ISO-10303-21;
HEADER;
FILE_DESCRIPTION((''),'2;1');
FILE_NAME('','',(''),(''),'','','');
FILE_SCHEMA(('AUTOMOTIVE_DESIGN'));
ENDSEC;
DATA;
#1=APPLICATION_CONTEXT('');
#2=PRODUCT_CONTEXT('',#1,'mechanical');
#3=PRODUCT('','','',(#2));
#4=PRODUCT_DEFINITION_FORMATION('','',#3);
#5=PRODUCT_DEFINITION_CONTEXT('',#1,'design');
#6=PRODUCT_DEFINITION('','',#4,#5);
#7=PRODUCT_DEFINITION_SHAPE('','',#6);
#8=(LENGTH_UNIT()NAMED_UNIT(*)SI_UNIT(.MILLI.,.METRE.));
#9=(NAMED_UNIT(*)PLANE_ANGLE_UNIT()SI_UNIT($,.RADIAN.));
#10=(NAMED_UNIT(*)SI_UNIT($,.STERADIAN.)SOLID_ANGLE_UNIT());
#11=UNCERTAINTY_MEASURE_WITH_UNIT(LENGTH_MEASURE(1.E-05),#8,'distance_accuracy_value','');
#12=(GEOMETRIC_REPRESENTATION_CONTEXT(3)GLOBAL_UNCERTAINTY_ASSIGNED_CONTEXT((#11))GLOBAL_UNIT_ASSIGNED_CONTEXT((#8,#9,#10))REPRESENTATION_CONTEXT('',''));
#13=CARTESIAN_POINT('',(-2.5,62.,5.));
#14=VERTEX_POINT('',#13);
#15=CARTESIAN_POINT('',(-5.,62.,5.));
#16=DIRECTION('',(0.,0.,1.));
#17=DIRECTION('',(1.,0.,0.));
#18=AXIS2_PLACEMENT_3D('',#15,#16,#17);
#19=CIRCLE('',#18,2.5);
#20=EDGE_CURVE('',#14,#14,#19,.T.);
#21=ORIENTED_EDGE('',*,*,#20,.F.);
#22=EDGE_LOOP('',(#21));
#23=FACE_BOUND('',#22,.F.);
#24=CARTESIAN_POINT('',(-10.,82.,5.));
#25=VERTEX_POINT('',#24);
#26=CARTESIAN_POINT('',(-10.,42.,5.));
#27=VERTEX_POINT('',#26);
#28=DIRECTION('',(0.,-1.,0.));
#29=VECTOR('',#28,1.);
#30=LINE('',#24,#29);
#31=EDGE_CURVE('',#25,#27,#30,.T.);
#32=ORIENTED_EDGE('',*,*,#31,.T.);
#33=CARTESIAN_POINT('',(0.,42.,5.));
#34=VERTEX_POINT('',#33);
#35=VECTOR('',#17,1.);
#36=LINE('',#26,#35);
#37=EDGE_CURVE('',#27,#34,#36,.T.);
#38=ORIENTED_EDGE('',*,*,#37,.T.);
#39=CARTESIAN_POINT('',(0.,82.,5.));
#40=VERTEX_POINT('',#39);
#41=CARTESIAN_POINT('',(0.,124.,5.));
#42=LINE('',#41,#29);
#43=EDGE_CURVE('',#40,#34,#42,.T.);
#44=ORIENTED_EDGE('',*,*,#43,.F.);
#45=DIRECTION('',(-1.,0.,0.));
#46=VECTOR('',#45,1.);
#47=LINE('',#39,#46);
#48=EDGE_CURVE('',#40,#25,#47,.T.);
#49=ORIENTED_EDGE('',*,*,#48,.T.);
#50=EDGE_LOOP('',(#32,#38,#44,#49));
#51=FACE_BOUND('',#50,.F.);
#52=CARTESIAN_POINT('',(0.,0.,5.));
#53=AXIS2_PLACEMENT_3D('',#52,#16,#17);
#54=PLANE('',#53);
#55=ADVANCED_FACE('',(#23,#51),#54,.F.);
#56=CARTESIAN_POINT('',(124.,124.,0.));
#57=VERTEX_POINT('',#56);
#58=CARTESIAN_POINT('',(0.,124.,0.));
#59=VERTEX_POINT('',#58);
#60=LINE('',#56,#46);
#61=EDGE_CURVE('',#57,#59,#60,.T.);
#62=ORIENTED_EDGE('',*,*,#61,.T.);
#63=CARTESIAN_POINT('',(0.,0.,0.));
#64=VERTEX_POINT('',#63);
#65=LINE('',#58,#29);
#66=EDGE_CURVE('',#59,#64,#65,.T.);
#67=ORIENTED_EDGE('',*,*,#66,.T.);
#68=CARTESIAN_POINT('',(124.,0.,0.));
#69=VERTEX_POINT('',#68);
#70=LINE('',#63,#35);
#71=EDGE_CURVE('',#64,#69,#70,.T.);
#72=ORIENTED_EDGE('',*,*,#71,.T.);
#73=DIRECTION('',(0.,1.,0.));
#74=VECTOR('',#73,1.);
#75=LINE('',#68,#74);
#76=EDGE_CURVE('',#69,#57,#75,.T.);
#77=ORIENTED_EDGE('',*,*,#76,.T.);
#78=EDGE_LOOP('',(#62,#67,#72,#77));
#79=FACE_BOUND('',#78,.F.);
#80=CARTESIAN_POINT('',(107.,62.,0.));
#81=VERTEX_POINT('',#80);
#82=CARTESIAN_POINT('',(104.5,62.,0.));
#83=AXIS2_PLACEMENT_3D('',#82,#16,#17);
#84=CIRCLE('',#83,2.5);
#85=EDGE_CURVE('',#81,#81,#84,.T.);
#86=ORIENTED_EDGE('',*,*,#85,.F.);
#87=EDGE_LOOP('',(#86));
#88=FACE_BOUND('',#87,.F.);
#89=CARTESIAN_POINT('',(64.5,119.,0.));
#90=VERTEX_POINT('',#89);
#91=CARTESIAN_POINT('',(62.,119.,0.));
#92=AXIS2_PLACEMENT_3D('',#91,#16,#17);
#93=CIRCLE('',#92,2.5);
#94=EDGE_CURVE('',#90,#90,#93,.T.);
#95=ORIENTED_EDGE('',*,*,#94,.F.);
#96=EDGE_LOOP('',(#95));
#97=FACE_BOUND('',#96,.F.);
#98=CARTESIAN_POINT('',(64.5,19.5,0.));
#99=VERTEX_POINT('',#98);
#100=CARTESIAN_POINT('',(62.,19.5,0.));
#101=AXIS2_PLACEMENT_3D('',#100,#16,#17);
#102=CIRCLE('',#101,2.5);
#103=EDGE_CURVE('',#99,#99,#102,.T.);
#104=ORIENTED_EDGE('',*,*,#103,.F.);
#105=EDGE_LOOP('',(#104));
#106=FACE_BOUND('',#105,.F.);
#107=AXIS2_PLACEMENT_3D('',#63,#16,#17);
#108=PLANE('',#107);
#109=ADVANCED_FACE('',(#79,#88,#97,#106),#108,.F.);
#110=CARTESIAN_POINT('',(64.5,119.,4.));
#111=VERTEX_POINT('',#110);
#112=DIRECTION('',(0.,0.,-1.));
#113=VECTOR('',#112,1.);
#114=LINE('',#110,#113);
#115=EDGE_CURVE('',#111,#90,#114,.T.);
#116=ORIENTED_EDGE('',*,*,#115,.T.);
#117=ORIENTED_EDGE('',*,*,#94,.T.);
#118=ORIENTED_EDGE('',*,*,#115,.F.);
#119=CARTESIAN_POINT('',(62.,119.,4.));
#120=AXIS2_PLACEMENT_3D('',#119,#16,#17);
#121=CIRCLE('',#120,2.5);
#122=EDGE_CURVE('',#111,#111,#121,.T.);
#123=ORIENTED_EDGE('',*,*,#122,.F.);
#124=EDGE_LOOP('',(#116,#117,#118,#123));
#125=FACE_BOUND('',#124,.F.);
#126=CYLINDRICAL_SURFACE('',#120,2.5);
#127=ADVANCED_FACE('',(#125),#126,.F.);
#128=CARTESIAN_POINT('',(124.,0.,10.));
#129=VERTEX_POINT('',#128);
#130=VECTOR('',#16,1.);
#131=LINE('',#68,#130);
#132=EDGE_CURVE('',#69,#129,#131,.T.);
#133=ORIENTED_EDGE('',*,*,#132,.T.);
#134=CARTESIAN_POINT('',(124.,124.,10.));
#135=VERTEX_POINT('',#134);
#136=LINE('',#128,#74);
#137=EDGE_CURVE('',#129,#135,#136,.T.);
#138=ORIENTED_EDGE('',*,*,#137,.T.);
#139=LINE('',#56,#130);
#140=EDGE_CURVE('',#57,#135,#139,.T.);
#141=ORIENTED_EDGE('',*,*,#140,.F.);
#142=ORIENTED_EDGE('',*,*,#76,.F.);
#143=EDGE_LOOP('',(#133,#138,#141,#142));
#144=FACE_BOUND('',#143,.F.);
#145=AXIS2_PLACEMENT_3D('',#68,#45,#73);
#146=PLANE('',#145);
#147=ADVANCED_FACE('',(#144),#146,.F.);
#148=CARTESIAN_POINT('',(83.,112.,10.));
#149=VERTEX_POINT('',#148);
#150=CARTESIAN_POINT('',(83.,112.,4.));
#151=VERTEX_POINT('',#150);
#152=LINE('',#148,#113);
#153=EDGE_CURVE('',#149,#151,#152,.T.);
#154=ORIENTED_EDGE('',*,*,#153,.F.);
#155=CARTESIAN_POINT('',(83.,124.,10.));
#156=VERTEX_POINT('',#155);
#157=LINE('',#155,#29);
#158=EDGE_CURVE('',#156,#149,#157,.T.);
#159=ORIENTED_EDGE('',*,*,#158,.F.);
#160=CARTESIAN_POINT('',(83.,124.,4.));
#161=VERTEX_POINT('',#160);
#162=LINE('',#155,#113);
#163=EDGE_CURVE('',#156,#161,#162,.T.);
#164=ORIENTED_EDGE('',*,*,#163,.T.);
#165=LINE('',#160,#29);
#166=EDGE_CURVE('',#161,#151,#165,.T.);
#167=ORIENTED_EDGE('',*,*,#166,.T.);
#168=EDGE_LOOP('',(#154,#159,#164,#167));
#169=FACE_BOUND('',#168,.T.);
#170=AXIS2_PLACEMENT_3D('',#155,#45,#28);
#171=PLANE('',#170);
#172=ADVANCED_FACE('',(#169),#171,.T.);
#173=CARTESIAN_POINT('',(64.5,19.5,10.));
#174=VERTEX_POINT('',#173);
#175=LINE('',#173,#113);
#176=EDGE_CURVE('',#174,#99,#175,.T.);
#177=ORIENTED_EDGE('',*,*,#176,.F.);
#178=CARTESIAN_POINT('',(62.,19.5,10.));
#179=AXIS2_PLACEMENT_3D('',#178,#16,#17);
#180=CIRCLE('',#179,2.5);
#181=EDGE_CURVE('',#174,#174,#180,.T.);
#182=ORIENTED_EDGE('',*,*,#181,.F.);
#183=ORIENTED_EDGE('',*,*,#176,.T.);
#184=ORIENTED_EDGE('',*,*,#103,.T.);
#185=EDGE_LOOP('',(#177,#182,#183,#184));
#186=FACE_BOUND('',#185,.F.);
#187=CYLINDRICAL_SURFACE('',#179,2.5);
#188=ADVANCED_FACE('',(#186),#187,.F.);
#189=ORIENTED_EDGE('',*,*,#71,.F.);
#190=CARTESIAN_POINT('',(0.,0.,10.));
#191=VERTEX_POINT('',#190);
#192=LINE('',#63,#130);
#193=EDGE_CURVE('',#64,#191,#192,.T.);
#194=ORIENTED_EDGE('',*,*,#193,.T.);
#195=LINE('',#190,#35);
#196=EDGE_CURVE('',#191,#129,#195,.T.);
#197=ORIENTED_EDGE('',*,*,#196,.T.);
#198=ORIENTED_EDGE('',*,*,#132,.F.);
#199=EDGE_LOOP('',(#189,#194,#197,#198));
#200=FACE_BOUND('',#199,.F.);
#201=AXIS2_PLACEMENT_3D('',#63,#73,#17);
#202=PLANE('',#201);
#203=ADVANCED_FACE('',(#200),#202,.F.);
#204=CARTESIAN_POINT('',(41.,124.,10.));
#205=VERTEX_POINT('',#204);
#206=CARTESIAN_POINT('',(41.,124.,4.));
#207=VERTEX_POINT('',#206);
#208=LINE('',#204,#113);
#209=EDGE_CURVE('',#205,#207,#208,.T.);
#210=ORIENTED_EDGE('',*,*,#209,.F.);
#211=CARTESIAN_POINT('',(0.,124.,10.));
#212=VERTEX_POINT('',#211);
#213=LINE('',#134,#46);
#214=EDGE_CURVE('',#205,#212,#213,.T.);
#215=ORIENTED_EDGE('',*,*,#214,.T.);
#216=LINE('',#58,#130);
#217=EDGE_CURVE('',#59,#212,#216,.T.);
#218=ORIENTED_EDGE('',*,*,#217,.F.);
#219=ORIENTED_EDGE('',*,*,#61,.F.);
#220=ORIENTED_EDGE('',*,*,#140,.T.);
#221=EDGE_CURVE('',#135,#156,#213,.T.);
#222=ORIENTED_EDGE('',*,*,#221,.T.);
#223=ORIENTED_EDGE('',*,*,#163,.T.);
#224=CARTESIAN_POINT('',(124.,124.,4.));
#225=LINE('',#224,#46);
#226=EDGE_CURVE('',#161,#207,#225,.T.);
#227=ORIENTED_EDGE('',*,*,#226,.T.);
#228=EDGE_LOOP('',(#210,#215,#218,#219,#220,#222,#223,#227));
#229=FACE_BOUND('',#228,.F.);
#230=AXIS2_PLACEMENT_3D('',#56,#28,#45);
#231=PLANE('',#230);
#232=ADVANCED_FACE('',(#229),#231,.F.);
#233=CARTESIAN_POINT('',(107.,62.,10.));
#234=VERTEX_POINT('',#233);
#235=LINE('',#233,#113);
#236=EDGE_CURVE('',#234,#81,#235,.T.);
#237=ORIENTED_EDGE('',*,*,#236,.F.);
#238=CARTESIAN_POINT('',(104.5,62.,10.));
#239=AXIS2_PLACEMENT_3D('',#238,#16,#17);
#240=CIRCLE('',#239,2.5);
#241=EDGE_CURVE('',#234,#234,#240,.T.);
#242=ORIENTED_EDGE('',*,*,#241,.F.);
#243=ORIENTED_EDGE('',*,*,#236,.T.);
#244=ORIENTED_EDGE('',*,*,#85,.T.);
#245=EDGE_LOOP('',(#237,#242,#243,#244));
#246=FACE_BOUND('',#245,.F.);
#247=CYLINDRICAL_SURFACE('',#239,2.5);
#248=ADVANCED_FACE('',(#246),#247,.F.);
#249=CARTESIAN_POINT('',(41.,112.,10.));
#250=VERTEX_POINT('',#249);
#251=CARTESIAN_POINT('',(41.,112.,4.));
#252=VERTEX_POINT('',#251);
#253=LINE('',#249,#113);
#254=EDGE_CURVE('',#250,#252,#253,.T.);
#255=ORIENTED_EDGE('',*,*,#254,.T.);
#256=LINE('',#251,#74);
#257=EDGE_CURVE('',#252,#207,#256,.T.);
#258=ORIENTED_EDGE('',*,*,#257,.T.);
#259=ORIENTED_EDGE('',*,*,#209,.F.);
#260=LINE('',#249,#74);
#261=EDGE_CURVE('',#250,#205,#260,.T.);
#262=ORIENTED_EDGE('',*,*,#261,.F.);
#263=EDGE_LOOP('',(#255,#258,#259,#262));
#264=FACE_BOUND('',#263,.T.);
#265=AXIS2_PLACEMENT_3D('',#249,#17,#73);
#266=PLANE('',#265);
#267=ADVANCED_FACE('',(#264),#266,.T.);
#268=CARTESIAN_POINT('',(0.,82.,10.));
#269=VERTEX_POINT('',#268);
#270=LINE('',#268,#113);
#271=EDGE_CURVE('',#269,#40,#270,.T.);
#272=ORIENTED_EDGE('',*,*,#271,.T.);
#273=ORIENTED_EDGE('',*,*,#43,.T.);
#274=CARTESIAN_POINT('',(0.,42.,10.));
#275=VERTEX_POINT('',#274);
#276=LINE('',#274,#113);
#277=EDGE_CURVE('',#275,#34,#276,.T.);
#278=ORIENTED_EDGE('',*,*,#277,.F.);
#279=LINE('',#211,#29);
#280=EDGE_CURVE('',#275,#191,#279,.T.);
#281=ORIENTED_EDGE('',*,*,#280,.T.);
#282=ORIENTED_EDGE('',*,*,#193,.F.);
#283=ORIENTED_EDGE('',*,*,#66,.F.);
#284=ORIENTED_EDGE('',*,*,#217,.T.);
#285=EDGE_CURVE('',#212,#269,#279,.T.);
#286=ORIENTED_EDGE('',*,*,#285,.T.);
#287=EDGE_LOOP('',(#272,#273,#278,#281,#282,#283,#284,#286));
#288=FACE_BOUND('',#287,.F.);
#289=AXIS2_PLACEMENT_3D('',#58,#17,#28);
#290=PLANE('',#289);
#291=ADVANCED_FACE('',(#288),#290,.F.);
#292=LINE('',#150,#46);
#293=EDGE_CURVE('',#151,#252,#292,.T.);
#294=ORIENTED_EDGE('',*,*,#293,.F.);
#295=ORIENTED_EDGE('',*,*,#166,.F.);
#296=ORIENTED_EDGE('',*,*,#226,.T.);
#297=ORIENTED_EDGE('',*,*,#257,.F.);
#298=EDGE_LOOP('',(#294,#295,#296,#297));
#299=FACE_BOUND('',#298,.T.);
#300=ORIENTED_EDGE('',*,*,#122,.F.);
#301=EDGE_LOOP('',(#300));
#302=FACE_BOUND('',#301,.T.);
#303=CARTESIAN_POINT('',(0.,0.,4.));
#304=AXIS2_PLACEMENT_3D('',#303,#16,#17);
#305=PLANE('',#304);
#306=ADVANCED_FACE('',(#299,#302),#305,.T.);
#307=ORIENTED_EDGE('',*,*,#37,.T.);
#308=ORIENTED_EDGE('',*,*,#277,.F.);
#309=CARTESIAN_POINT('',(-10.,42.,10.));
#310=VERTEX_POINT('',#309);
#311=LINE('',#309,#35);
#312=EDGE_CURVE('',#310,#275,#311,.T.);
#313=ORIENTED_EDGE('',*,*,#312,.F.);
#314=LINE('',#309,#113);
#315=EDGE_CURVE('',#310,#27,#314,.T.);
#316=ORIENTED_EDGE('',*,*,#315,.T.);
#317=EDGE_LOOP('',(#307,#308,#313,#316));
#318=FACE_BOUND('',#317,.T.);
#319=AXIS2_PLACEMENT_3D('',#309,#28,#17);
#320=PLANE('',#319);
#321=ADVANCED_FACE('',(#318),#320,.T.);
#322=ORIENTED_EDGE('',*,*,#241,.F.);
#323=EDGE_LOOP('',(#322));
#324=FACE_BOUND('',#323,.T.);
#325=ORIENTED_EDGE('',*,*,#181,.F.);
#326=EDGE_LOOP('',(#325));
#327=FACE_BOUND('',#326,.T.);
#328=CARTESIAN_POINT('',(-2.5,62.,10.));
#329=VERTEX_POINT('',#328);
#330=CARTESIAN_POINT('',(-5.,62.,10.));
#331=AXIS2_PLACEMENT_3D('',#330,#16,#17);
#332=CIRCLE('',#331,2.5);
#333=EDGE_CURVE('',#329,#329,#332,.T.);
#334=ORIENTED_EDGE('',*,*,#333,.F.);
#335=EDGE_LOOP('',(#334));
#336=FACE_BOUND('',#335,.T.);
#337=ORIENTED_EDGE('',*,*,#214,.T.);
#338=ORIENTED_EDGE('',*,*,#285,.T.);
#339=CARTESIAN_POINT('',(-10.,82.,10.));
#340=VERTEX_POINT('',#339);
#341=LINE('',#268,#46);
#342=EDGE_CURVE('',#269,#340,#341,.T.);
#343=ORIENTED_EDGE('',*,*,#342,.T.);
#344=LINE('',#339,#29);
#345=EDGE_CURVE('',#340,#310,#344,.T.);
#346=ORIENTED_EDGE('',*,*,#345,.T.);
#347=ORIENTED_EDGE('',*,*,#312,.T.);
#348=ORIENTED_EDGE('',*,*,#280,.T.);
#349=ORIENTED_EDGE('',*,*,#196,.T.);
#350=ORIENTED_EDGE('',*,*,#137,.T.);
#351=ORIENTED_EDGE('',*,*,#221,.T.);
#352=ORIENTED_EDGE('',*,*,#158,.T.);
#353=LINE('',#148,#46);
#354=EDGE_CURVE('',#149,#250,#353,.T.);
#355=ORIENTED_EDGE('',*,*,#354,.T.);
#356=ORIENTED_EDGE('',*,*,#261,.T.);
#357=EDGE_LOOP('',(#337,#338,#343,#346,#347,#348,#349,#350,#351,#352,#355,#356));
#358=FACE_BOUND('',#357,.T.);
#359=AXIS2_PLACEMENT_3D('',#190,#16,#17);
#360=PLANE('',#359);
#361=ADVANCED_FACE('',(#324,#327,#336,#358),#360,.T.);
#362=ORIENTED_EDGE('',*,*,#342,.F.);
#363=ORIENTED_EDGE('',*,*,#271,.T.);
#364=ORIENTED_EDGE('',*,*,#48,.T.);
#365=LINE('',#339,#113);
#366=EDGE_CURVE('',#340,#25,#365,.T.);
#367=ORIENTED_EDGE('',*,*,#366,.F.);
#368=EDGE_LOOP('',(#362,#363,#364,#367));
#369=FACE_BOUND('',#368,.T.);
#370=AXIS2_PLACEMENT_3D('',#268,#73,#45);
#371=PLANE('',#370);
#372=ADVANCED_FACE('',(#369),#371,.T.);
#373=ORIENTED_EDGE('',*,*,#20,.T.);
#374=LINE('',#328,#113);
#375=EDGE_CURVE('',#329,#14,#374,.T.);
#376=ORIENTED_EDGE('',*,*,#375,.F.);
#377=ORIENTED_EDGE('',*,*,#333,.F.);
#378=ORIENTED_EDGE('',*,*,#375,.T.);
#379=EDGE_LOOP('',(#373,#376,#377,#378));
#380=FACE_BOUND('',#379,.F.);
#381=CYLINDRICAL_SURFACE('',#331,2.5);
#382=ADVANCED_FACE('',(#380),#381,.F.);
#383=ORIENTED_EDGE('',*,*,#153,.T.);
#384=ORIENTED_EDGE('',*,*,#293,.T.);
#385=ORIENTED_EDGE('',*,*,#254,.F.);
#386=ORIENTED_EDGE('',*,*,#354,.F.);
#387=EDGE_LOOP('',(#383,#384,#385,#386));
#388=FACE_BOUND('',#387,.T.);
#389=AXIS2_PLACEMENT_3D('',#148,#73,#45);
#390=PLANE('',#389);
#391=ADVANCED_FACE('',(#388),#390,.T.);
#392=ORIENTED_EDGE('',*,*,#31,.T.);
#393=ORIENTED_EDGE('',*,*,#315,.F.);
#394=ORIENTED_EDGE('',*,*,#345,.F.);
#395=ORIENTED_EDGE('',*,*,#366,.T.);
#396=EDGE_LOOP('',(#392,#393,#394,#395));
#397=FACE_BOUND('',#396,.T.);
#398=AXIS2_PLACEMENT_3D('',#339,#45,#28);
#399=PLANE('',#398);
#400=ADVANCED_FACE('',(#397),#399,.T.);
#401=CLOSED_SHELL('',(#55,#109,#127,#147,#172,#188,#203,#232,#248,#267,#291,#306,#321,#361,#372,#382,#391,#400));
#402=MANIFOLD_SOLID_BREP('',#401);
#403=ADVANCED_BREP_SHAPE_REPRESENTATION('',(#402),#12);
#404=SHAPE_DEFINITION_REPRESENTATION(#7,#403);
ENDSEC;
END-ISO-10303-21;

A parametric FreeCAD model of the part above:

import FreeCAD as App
import Part
import Sketcher

V = App.Vector
Q = App.Units.Quantity


def add_polygon(sketch, points):
    """Adds a closed chain of lines whose ends are joined by coincident constraints."""
    first, n = sketch.GeometryCount, len(points)
    for a, b in zip(points, points[1:] + points[:1]):
        sketch.addGeometry(Part.LineSegment(App.Vector(*a, 0), App.Vector(*b, 0)), False)
    for i in range(n):
        sketch.addConstraint(Sketcher.Constraint("Coincident", first + i, 2, first + (i + 1) % n, 1))

doc = App.newDocument("Part")
body = doc.addObject("PartDesign::Body", "Body")

sketch1 = body.newObject("Sketcher::SketchObject", "Sketch")
sketch1.AttachmentSupport = (doc.getObject("XY_Plane"), [""])
sketch1.MapMode = "FlatFace"
add_polygon(sketch1, [(0, 124), (0, 0), (124, 0), (124, 124)])
sketch1.addConstraint([
    Sketcher.Constraint("Vertical", 0),
    Sketcher.Constraint("Horizontal", 1),
    Sketcher.Constraint("Vertical", 2),
    Sketcher.Constraint("Horizontal", 3),
    Sketcher.Constraint("Coincident", 0, 2, -1, 1),
    Sketcher.Constraint("Equal", 3, 0),
    Sketcher.Constraint("DistanceX", 1, 1, 1, 2, Q("124 mm")),
])
pad1 = body.newObject("PartDesign::Pad", "Pad")
pad1.Profile = sketch1
pad1.Length = 10

sketch2 = body.newObject("Sketcher::SketchObject", "Sketch001")
sketch2.AttachmentSupport = (doc.getObject("XY_Plane"), [""])
sketch2.MapMode = "FlatFace"
sketch2.AttachmentOffset = App.Placement(V(0, 0, 10), App.Rotation())
add_polygon(sketch2, [(83, 112), (83, 124), (41, 124), (41, 112)])
sketch2.addConstraint([
    Sketcher.Constraint("Vertical", 0),
    Sketcher.Constraint("Horizontal", 1),
    Sketcher.Constraint("Vertical", 2),
    Sketcher.Constraint("Horizontal", 3),
    Sketcher.Constraint("DistanceX", 1, 2, 1, 1, Q("42 mm")),
    Sketcher.Constraint("DistanceY", 0, 1, 0, 2, Q("12 mm")),
    Sketcher.Constraint("DistanceX", -1, 1, 0, 2, Q("83 mm")),
    Sketcher.Constraint("DistanceY", -1, 1, 0, 2, Q("124 mm")),
])
pocket1 = body.newObject("PartDesign::Pocket", "Pocket")
pocket1.Profile = sketch2
pocket1.Length = 6

sketch3 = body.newObject("Sketcher::SketchObject", "Sketch002")
sketch3.AttachmentSupport = (doc.getObject("XY_Plane"), [""])
sketch3.MapMode = "FlatFace"
sketch3.AttachmentOffset = App.Placement(V(0, 0, 4), App.Rotation())
sketch3.addGeometry(Part.Circle(V(62, 119, 0), V(0, 0, 1), 2.5), False)
sketch3.addConstraint([
    Sketcher.Constraint("Diameter", 0, Q("5 mm")),
    Sketcher.Constraint("DistanceX", -1, 1, 0, 3, Q("62 mm")),
    Sketcher.Constraint("DistanceY", -1, 1, 0, 3, Q("119 mm")),
])
pocket2 = body.newObject("PartDesign::Pocket", "Pocket001")
pocket2.Profile = sketch3
pocket2.Type = "ThroughAll"

sketch4 = body.newObject("Sketcher::SketchObject", "Sketch003")
sketch4.AttachmentSupport = (doc.getObject("XY_Plane"), [""])
sketch4.MapMode = "FlatFace"
sketch4.AttachmentOffset = App.Placement(V(0, 0, 10), App.Rotation())
add_polygon(sketch4, [(0, 42), (0, 82), (-10, 82), (-10, 42)])
sketch4.addGeometry(Part.Circle(V(-5, 62, 0), V(0, 0, 1), 2.5), False)
sketch4.addConstraint([
    Sketcher.Constraint("Vertical", 0),
    Sketcher.Constraint("Horizontal", 1),
    Sketcher.Constraint("Vertical", 2),
    Sketcher.Constraint("Horizontal", 3),
    Sketcher.Constraint("PointOnObject", 0, 2, -2),
    Sketcher.Constraint("Diameter", 4, Q("5 mm")),
    Sketcher.Constraint("DistanceX", 1, 2, 1, 1, Q("10 mm")),
    Sketcher.Constraint("DistanceY", 0, 1, 0, 2, Q("40 mm")),
    Sketcher.Constraint("DistanceX", 4, 3, -1, 1, Q("5 mm")),
    Sketcher.Constraint("DistanceY", -1, 1, 4, 3, Q("62 mm")),
    Sketcher.Constraint("DistanceY", -1, 1, 0, 2, Q("82 mm")),
])
pad2 = body.newObject("PartDesign::Pad", "Pad001")
pad2.Profile = sketch4
pad2.Length = 5
pad2.Reversed = True

sketch5 = body.newObject("Sketcher::SketchObject", "Sketch004")
sketch5.AttachmentSupport = (doc.getObject("XY_Plane"), [""])
sketch5.MapMode = "FlatFace"
sketch5.AttachmentOffset = App.Placement(V(0, 0, 10), App.Rotation())
sketch5.addGeometry([
    Part.Circle(V(62, 19.5, 0), V(0, 0, 1), 2.5),
    Part.Circle(V(104.5, 62, 0), V(0, 0, 1), 2.5),
], False)
sketch5.addConstraint([
    Sketcher.Constraint("Equal", 0, 1),
    Sketcher.Constraint("Diameter", 0, Q("5 mm")),
    Sketcher.Constraint("DistanceY", -1, 1, 0, 3, Q("19.5 mm")),
    Sketcher.Constraint("DistanceX", -1, 1, 0, 3, Q("62 mm")),
    Sketcher.Constraint("DistanceY", -1, 1, 1, 3, Q("62 mm")),
    Sketcher.Constraint("DistanceX", -1, 1, 1, 3, Q("104.5 mm")),
])
pocket3 = body.newObject("PartDesign::Pocket", "Pocket002")
pocket3.Profile = sketch5
pocket3.Type = "ThroughAll"

doc.recompute()
